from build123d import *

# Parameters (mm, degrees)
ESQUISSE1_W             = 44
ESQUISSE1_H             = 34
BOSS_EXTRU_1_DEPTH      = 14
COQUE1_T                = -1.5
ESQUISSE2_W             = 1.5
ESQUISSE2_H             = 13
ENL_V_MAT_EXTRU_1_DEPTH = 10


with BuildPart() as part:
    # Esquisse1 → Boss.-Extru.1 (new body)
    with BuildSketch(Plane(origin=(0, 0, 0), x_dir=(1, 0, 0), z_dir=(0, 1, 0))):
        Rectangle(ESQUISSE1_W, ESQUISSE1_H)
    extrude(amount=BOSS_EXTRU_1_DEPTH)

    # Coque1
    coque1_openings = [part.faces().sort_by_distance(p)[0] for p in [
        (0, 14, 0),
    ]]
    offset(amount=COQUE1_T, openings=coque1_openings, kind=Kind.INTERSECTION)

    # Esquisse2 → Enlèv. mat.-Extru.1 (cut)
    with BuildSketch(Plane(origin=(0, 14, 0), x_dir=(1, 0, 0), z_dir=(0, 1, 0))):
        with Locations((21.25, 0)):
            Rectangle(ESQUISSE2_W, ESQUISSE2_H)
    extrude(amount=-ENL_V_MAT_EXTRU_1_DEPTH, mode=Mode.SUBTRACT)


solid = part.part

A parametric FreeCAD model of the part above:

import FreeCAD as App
import Part
import Sketcher
from FreeCAD import Vector
Q = App.Units.Quantity


def faces_at(feature, points):
    """Names of the faces that lie closest to the given points."""
    faces = feature.Shape.Faces
    near = lambda p: min(range(len(faces)), key=lambda i: faces[i].distToShape(Part.Vertex(*p))[0])
    return sorted({f"Face{near(p) + 1}" for p in points})


def add_polygon(sketch, points):
    """Adds a closed chain of lines whose ends are joined by coincident constraints."""
    first, n = sketch.GeometryCount, len(points)
    for a, b in zip(points, points[1:] + points[:1]):
        sketch.addGeometry(Part.LineSegment(App.Vector(*a, 0), App.Vector(*b, 0)), False)
    for i in range(n):
        sketch.addConstraint(Sketcher.Constraint("Coincident", first + i, 2, first + (i + 1) % n, 1))

doc = App.newDocument("Part")
params = doc.addObject("Spreadsheet::Sheet", "Params")
for row, (alias, value) in enumerate([
    ("sketch1_width", "44 mm"),
    ("sketch1_height", "34 mm"),
    ("pad1_length", "14 mm"),
    ("thickness_wall", "1.5 mm"),
    ("sketch2_height", "13 mm"),
    ("sketch2_width", "1.5 mm"),
    ("pocket1_length", "10 mm"),
], start=1):
    params.set(f"A{row}", alias)
    params.set(f"B{row}", "=" + value)
    params.setAlias(f"B{row}", alias)

body = doc.addObject("PartDesign::Body", "Body")

# Sketch on XZ plane
sketch1 = body.newObject("Sketcher::SketchObject", "Sketch")
sketch1.AttachmentSupport = (doc.getObject("XZ_Plane"), [""])
sketch1.MapMode = "FlatFace"
add_polygon(sketch1, [(-22, -17), (-22, 17), (22, 17), (22, -17)])  # lines 0-3
sketch1.addConstraint(Sketcher.Constraint("Vertical", 0))
sketch1.addConstraint(Sketcher.Constraint("Horizontal", 1))
sketch1.addConstraint(Sketcher.Constraint("Vertical", 2))
sketch1.addConstraint(Sketcher.Constraint("Horizontal", 3))
sketch1.addConstraint(Sketcher.Constraint("Symmetric", 0, 2, 2, 2, -1, 1))
sketch1.addConstraint(Sketcher.Constraint("DistanceX", 1, 1, 1, 2, Q("44 mm")))
sketch1.addConstraint(Sketcher.Constraint("DistanceY", 0, 1, 0, 2, Q("34 mm")))
sketch1.setExpression("Constraints[9]", "Params.sketch1_width")
sketch1.setExpression("Constraints[10]", "Params.sketch1_height")
pad1 = body.newObject("PartDesign::Pad", "Pad")
pad1.Profile = sketch1
pad1.setExpression("Length", "Params.pad1_length")
pad1.Reversed = True
doc.recompute()

thickness = body.newObject("PartDesign::Thickness", "Thickness")
thickness.Base = (pad1, faces_at(pad1, [(0, 14, 0)]))
thickness.setExpression("Value", "Params.thickness_wall")
thickness.Reversed = True
thickness.Join = "Intersection"

# Sketch on XZ plane
sketch2 = body.newObject("Sketcher::SketchObject", "Sketch001")
sketch2.AttachmentSupport = (doc.getObject("XZ_Plane"), [""])
sketch2.MapMode = "FlatFace"
sketch2.AttachmentOffset = App.Placement(Vector(0, 0, -14), App.Rotation())
add_polygon(sketch2, [(20.5, -6.5), (20.5, 6.5), (22, 6.5), (22, -6.5)])  # lines 0-3
sketch2.addConstraint(Sketcher.Constraint("Vertical", 0))
sketch2.addConstraint(Sketcher.Constraint("Horizontal", 1))
sketch2.addConstraint(Sketcher.Constraint("Vertical", 2))
sketch2.addConstraint(Sketcher.Constraint("Horizontal", 3))
sketch2.addConstraint(Sketcher.Constraint("DistanceY", 0, 1, 0, 2, Q("13 mm")))
sketch2.addConstraint(Sketcher.Constraint("DistanceX", 1, 1, 1, 2, Q("1.5 mm")))
sketch2.addConstraint(Sketcher.Constraint("DistanceX", -1, 1, 1, 2, Q("22 mm")))
sketch2.addConstraint(Sketcher.Constraint("DistanceY", -1, 1, 0, 2, Q("6.5 mm")))
sketch2.setExpression("Constraints[8]", "Params.sketch2_height")
sketch2.setExpression("Constraints[9]", "Params.sketch2_width")
pocket1 = body.newObject("PartDesign::Pocket", "Pocket")
pocket1.Profile = sketch2
pocket1.setExpression("Length", "Params.pocket1_length")
pocket1.Reversed = True

doc.recompute()
